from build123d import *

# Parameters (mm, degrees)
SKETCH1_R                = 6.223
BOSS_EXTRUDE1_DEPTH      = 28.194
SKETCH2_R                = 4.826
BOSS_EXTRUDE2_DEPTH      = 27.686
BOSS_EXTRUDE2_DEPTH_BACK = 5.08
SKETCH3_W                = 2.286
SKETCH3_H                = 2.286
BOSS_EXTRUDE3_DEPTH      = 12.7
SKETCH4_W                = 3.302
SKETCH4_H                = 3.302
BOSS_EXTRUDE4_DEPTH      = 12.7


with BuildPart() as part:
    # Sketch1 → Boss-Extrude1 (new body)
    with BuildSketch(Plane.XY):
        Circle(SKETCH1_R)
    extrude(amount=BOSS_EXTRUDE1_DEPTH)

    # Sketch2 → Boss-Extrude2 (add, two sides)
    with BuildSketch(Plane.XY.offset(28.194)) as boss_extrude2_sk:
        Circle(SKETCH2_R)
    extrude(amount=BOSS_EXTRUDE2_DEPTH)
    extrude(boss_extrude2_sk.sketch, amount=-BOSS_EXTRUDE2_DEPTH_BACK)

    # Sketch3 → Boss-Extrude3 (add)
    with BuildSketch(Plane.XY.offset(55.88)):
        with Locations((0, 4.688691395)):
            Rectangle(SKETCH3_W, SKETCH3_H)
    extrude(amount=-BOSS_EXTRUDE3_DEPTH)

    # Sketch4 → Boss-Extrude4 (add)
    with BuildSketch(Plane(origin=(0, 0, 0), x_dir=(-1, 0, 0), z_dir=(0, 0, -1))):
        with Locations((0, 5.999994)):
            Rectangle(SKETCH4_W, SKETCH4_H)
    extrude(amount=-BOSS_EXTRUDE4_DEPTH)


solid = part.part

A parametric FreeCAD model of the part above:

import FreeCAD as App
import Part
import Sketcher

V = App.Vector
Q = App.Units.Quantity


def add_polygon(sketch, points):
    """Adds a closed chain of lines whose ends are joined by coincident constraints."""
    first, n = sketch.GeometryCount, len(points)
    for a, b in zip(points, points[1:] + points[:1]):
        sketch.addGeometry(Part.LineSegment(App.Vector(*a, 0), App.Vector(*b, 0)), False)
    for i in range(n):
        sketch.addConstraint(Sketcher.Constraint("Coincident", first + i, 2, first + (i + 1) % n, 1))

doc = App.newDocument("Part")
body = doc.addObject("PartDesign::Body", "Body")

# Sketch on XY plane
sketch1 = body.newObject("Sketcher::SketchObject", "Sketch")
sketch1.AttachmentSupport = (doc.getObject("XY_Plane"), [""])
sketch1.MapMode = "FlatFace"
sketch1.addGeometry(Part.Circle(V(0, 0, 0), V(0, 0, 1), 6), False)
sketch1.addConstraint([
    Sketcher.Constraint("Coincident", 0, 3, -1, 1),
    Sketcher.Constraint("Diameter", 0, Q("0.49 in")),
])
pad1 = body.newObject("PartDesign::Pad", "Pad")
pad1.Profile = sketch1
pad1.Length = Q("1.11 in")

# Sketch on XY plane
sketch2 = body.newObject("Sketcher::SketchObject", "Sketch001")
sketch2.AttachmentSupport = (doc.getObject("XY_Plane"), [""])
sketch2.MapMode = "FlatFace"
sketch2.AttachmentOffset = App.Placement(V(0, 0, 1.11 * 25.4), App.Rotation())
sketch2.addGeometry(Part.Circle(V(0, 0, 0), V(0, 0, 1), 4.8), False)
sketch2.addConstraint([
    Sketcher.Constraint("Coincident", 0, 3, -1, 1),
    Sketcher.Constraint("Diameter", 0, Q("0.38 in")),
])
pad2 = body.newObject("PartDesign::Pad", "Pad001")
pad2.Profile = sketch2
pad2.Type = "TwoLengths"
pad2.Length = Q("1.09 in")
pad2.Length2 = Q("0.2 in")

# Sketch on XY plane
sketch3 = body.newObject("Sketcher::SketchObject", "Sketch002")
sketch3.AttachmentSupport = (doc.getObject("XY_Plane"), [""])
sketch3.MapMode = "FlatFace"
sketch3.AttachmentOffset = App.Placement(V(0, 0, 2.2 * 25.4), App.Rotation())
add_polygon(sketch3, [(-1.1, 5.8), (-1.1, 3.5), (1.1, 3.5), (1.1, 5.8)])  # lines 0-3
sketch3.addConstraint([
    Sketcher.Constraint("Vertical", 0),
    Sketcher.Constraint("Horizontal", 1),
    Sketcher.Constraint("Vertical", 2),
    Sketcher.Constraint("Horizontal", 3),
    Sketcher.Constraint("Equal", 3, 0),
    Sketcher.Constraint("DistanceX", 1, 1, 1, 2, Q("0.09 in")),
    Sketcher.Constraint("DistanceX", 0, 2, -1, 1, Q("0.045 in")),
    Sketcher.Constraint("DistanceY", -1, 1, 0, 2, Q("3.545691 mm")),
])
pad3 = body.newObject("PartDesign::Pad", "Pad002")
pad3.Profile = sketch3
pad3.Length = Q("0.5 in")
pad3.Reversed = True

# Sketch on XY plane
sketch4 = body.newObject("Sketcher::SketchObject", "Sketch003")
sketch4.AttachmentSupport = (doc.getObject("XY_Plane"), [""])
sketch4.MapMode = "FlatFace"
add_polygon(sketch4, [(1.7, 7.7), (1.7, 4.3), (-1.7, 4.3), (-1.7, 7.7)])  # lines 0-3
sketch4.addConstraint([
    Sketcher.Constraint("Vertical", 0),
    Sketcher.Constraint("Horizontal", 1),
    Sketcher.Constraint("Vertical", 2),
    Sketcher.Constraint("Horizontal", 3),
    Sketcher.Constraint("Equal", 3, 0),
    Sketcher.Constraint("DistanceX", 1, 2, 1, 1, Q("0.13 in")),
    Sketcher.Constraint("DistanceX", -1, 1, 0, 2, Q("0.065 in")),
    Sketcher.Constraint("DistanceY", -1, 1, 0, 2, Q("4.348994 mm")),
])
pad4 = body.newObject("PartDesign::Pad", "Pad003")
pad4.Profile = sketch4
pad4.Length = Q("0.5 in")

doc.recompute()
